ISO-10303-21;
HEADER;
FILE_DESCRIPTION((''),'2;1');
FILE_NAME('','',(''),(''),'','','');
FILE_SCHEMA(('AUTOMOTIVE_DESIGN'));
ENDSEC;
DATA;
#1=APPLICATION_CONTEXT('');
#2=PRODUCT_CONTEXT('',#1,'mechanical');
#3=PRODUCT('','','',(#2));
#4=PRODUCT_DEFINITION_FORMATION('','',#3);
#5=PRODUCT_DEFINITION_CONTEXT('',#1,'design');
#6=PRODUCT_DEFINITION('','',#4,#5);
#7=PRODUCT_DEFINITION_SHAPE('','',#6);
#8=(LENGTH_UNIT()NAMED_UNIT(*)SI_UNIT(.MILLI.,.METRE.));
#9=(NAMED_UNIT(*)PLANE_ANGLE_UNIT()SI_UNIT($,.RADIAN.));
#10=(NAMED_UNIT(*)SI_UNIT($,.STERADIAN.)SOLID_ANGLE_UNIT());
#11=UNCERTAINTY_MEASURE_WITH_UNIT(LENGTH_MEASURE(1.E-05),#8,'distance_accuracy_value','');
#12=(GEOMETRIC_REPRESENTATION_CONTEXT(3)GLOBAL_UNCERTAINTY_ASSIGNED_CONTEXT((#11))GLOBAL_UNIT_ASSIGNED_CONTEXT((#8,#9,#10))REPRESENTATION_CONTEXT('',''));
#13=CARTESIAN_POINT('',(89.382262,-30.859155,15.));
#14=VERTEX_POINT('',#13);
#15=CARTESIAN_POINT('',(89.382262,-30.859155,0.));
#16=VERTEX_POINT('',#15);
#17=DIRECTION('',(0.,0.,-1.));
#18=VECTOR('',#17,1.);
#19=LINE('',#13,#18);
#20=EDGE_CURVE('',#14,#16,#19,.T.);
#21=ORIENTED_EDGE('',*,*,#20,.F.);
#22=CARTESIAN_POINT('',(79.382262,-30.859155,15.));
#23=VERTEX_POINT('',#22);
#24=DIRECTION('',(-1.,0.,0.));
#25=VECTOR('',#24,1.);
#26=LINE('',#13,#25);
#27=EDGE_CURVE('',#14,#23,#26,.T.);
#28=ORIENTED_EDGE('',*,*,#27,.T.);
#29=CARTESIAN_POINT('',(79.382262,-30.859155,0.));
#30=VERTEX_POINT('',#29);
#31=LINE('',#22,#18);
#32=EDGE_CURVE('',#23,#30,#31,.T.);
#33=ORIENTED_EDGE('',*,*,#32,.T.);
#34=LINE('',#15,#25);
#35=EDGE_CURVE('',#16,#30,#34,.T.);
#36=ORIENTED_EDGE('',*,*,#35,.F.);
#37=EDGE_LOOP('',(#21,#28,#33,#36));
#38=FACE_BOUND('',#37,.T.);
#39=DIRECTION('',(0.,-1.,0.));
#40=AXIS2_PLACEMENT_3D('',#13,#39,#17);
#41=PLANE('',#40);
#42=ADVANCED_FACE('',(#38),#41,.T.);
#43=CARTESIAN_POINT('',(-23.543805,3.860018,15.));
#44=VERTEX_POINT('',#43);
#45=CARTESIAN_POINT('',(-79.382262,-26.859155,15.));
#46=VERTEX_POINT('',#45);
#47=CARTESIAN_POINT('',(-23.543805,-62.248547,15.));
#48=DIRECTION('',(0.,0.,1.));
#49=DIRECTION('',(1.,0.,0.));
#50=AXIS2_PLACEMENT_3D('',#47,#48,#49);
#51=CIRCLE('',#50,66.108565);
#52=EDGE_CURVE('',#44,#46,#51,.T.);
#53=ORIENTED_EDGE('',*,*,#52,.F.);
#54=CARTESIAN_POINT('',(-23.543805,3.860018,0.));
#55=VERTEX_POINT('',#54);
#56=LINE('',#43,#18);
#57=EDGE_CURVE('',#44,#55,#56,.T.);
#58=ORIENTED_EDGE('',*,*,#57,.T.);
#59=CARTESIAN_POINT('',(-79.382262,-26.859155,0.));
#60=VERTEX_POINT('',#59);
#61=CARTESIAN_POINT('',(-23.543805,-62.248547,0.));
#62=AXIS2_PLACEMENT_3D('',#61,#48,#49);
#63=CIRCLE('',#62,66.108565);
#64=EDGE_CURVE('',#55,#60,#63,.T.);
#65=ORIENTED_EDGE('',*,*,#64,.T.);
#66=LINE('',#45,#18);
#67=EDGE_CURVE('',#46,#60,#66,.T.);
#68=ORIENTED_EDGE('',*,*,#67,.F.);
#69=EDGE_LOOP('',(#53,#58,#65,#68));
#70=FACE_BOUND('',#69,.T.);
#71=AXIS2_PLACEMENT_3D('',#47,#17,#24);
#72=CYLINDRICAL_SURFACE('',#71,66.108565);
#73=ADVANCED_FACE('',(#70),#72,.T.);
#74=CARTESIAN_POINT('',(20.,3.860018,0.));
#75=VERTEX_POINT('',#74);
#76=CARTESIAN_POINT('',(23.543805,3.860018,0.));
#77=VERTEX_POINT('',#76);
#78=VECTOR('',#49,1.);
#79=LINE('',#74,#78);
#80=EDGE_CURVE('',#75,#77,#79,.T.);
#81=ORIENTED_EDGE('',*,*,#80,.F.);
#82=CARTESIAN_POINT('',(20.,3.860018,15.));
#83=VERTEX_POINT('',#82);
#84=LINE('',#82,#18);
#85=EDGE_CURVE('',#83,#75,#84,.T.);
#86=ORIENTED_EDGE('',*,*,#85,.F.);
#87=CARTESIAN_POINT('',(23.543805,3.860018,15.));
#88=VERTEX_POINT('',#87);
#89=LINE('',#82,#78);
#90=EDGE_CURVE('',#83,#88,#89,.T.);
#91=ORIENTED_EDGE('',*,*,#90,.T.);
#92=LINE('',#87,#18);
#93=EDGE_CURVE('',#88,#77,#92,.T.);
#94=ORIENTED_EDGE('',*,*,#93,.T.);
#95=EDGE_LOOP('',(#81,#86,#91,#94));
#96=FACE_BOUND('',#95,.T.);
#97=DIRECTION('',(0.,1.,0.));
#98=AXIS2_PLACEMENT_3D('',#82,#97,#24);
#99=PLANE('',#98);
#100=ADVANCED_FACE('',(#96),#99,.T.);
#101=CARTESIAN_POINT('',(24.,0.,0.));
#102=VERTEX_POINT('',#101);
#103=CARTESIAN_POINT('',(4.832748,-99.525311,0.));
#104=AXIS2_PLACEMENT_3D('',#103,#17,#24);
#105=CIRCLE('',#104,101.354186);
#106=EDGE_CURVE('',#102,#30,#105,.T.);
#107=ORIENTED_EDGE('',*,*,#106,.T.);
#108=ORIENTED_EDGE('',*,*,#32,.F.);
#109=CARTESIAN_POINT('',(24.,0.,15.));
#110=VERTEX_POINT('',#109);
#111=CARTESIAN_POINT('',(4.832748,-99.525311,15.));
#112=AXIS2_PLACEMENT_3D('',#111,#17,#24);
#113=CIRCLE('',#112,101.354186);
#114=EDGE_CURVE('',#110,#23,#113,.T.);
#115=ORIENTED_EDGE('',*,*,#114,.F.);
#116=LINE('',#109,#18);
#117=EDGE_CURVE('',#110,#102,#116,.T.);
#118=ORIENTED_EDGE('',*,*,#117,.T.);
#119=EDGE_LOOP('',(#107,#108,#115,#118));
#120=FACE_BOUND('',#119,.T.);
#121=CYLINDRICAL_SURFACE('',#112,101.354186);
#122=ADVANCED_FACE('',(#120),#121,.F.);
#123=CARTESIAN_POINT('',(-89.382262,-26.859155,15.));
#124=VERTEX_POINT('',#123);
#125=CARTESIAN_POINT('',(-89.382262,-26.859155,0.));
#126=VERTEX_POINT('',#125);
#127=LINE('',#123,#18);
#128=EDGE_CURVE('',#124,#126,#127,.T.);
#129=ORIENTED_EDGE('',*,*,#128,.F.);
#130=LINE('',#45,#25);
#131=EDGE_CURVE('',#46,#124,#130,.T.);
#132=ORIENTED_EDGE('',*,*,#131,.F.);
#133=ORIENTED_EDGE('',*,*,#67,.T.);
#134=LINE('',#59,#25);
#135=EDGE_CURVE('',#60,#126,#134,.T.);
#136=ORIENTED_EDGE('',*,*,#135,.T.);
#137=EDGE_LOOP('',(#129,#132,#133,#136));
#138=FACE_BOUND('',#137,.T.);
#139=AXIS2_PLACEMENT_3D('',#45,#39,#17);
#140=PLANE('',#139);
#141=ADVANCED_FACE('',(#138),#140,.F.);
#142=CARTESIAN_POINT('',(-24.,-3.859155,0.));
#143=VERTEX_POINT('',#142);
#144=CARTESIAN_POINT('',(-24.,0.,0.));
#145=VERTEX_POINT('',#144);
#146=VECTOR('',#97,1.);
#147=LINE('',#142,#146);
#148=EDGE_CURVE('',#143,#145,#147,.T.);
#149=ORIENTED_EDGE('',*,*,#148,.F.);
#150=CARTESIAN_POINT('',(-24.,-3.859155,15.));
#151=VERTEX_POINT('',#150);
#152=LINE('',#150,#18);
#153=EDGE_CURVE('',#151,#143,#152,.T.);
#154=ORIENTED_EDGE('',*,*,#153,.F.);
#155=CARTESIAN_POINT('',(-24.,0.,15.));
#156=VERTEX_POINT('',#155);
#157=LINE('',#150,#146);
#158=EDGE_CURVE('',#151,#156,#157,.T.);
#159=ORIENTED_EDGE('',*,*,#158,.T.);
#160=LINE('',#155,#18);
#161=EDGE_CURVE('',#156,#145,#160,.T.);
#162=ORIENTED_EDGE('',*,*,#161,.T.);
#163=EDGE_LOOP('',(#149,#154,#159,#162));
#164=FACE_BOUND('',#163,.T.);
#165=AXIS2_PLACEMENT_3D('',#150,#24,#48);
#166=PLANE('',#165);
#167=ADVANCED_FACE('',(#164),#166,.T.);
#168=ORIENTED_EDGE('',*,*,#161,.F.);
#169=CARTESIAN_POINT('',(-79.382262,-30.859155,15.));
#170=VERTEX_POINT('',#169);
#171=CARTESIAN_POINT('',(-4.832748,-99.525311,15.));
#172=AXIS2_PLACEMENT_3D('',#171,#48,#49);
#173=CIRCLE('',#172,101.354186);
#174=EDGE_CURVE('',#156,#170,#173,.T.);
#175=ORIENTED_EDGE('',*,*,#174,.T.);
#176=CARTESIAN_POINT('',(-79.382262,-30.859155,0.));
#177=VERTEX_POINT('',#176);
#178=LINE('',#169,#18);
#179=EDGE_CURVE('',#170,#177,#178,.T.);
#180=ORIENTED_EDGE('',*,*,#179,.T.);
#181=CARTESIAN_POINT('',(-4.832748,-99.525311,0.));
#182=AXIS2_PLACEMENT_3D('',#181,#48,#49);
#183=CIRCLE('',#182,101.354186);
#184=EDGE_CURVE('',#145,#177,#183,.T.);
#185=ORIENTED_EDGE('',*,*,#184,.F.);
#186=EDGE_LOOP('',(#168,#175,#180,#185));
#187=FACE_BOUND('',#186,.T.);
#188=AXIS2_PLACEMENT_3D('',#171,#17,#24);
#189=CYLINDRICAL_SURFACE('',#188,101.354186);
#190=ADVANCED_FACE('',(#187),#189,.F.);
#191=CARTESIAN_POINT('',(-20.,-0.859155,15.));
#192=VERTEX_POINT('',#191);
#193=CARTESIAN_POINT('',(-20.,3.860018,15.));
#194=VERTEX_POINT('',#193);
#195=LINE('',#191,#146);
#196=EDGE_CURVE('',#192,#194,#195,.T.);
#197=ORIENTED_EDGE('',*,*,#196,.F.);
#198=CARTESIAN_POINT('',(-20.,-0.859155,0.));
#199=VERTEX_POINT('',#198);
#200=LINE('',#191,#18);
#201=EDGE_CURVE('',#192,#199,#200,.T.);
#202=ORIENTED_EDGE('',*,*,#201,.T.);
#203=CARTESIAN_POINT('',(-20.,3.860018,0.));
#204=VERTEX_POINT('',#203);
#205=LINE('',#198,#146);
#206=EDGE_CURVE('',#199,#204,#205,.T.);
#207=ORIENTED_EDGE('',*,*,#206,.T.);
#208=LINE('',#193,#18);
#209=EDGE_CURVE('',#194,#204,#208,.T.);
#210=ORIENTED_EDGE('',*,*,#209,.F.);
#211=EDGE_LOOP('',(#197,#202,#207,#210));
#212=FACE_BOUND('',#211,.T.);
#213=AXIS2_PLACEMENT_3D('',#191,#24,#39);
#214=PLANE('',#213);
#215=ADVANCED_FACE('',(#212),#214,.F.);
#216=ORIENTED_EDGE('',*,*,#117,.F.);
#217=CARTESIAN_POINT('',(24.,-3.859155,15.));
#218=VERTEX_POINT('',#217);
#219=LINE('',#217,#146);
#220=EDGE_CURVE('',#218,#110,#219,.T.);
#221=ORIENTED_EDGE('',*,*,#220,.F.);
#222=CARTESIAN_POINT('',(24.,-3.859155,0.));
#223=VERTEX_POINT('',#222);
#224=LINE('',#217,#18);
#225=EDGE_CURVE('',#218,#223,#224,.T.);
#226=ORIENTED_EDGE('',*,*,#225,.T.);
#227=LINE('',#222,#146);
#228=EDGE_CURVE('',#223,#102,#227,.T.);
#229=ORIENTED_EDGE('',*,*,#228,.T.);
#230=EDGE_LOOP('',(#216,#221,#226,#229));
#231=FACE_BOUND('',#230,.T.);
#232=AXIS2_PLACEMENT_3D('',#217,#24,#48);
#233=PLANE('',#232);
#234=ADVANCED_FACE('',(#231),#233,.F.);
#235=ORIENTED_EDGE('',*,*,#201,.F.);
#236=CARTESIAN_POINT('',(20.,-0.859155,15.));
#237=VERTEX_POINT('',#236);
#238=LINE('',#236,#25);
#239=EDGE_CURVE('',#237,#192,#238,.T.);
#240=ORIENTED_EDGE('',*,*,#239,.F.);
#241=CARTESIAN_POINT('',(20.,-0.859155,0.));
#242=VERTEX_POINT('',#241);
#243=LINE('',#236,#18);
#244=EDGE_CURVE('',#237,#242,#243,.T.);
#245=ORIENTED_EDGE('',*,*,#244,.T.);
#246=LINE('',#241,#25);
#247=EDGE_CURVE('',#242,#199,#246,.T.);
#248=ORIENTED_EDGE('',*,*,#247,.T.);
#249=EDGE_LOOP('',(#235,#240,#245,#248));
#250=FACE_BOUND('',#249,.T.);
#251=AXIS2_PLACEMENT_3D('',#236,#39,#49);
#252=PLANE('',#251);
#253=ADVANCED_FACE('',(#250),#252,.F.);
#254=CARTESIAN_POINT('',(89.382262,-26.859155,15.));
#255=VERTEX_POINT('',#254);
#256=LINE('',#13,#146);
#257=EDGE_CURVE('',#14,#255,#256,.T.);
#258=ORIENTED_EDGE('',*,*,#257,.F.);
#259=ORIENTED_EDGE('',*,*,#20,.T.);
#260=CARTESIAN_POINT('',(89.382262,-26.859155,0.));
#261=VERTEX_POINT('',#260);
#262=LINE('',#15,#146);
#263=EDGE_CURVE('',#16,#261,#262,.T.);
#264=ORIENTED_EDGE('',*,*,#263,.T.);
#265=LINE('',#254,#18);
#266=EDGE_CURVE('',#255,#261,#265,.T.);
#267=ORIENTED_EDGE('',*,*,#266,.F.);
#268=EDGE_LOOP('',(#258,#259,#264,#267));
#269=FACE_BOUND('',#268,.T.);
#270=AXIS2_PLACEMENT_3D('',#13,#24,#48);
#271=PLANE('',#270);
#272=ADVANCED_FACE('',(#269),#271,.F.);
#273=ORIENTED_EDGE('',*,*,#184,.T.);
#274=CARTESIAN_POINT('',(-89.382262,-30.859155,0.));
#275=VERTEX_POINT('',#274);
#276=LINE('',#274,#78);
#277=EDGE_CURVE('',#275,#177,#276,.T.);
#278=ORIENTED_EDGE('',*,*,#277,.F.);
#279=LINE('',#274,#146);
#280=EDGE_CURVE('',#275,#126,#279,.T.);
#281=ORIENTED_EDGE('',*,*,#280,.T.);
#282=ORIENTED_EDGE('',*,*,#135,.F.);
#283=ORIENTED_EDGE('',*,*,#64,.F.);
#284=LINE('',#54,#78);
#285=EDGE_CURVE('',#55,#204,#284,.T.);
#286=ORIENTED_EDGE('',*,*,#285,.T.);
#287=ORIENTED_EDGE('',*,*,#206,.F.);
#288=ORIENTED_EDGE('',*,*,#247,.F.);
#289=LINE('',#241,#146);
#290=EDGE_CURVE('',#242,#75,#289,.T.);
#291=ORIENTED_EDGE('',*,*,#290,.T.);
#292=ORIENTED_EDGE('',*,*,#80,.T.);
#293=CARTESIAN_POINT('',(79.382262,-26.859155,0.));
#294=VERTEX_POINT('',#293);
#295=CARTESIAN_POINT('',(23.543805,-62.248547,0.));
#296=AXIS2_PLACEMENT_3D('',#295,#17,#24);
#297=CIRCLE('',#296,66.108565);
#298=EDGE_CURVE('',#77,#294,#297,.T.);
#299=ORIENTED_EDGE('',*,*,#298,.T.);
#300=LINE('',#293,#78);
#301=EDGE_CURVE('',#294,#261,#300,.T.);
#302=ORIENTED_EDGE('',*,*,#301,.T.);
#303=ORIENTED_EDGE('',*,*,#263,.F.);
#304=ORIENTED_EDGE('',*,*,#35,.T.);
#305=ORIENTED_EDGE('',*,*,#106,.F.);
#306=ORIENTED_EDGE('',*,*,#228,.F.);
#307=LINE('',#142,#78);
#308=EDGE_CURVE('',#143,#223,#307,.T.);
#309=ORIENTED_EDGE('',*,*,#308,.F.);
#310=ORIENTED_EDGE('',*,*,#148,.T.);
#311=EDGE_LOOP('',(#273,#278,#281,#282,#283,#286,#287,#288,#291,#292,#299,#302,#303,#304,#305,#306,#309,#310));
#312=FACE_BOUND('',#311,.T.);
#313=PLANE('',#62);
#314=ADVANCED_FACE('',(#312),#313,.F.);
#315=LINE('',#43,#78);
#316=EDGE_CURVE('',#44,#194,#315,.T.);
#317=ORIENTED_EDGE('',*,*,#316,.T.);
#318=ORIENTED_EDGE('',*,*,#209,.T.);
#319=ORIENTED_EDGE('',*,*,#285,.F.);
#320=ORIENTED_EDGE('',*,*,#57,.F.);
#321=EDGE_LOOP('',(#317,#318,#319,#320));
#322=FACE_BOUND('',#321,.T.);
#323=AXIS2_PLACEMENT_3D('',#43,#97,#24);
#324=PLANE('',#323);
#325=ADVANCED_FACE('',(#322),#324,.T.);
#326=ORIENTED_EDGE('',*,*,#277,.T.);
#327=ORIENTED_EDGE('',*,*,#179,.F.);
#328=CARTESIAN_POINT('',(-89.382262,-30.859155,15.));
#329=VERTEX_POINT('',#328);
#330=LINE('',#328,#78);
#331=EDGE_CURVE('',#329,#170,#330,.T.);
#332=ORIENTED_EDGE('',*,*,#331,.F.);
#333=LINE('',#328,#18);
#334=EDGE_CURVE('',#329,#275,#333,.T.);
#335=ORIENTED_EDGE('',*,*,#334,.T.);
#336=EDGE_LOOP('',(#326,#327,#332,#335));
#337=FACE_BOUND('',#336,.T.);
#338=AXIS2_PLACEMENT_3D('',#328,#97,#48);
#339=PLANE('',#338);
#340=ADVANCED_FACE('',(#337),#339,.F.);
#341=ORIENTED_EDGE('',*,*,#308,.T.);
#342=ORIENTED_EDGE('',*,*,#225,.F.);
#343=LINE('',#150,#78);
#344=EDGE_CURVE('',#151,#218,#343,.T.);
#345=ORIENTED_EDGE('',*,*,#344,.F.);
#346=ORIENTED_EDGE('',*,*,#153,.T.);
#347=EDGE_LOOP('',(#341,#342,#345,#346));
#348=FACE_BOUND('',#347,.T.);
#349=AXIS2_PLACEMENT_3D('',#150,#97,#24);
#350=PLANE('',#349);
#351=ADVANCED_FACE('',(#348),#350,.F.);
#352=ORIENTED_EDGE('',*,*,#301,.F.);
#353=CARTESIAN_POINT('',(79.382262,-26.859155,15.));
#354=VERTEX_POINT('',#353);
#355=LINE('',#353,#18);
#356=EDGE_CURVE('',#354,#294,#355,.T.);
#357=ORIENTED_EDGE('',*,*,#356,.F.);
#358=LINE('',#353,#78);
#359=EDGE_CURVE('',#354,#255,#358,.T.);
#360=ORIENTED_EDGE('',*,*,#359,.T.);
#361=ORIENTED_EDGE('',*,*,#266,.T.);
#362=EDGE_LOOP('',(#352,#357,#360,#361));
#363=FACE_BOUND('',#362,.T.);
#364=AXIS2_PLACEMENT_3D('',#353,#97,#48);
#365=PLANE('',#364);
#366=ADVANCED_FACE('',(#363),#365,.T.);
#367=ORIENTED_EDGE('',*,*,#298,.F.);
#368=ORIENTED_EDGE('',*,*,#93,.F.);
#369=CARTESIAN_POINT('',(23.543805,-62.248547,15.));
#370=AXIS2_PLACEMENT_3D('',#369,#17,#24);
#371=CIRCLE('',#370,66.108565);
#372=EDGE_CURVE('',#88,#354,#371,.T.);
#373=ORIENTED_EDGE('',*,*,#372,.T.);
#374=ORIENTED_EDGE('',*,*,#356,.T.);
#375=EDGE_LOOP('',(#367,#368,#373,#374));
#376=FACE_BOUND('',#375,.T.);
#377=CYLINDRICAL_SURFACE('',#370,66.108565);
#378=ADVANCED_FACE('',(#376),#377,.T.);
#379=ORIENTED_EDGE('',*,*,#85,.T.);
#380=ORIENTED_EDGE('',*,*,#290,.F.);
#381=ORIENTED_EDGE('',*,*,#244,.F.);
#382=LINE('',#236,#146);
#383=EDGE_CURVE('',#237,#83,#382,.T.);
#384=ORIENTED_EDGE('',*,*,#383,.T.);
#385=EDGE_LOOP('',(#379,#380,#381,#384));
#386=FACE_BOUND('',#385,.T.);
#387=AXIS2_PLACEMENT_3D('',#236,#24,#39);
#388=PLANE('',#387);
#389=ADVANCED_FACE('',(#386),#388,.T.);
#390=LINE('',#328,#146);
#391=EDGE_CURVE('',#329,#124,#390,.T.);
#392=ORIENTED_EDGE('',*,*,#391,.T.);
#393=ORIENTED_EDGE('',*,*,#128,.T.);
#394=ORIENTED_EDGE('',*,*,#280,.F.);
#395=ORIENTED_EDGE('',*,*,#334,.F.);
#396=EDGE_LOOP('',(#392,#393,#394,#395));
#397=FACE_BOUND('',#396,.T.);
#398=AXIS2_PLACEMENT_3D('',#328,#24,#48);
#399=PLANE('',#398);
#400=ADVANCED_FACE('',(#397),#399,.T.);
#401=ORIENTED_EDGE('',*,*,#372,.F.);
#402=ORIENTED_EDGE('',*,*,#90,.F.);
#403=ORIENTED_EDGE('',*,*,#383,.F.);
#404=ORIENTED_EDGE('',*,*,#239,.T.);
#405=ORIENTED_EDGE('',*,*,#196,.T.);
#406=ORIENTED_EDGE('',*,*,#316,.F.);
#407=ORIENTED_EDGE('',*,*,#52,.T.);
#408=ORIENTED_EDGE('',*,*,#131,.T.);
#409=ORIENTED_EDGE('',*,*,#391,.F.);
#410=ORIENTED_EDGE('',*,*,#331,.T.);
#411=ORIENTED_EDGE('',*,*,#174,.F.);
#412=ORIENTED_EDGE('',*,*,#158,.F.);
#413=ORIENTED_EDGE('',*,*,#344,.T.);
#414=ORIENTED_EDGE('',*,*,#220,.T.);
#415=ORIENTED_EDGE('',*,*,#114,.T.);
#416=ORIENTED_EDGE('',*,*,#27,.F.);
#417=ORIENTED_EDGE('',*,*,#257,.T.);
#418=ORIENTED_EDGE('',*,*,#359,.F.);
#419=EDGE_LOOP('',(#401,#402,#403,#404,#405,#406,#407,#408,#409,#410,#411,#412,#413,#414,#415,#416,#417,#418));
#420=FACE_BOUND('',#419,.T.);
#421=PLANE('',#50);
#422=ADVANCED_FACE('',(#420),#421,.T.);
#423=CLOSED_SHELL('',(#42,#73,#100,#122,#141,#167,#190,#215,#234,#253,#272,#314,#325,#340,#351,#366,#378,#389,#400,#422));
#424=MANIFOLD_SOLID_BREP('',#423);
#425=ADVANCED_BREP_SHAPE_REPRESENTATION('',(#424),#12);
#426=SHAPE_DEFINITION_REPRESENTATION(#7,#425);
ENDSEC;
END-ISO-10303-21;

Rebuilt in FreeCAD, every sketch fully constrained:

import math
import FreeCAD as App
import Part
import Sketcher

V = App.Vector

doc = App.newDocument("Part")
params = doc.addObject("Spreadsheet::Sheet", "Params")
for row, (alias, value) in enumerate([
    ("sketch1_width", "40 mm"),
    ("sketch1_width2", "10 mm"),
    ("sketch1_width3", "48 mm"),
    ("sketch1_height", "4 mm"),
    ("pad1_length", "15 mm"),
], start=1):
    params.set(f"A{row}", alias)
    params.set(f"B{row}", "=" + value)
    params.setAlias(f"B{row}", alias)

body = doc.addObject("PartDesign::Body", "Body")

# Sketch on XY plane
sketch1 = body.newObject("Sketcher::SketchObject", "Sketch")
sketch1.AttachmentSupport = (doc.getObject("XY_Plane"), [""])
sketch1.MapMode = "FlatFace"
sketch1.addGeometry([
    Part.LineSegment(V(20, 3.860018, 0), V(20, -0.859155, 0)),  # 0
    Part.LineSegment(V(20, -0.859155, 0), V(-20, -0.859155, 0)),  # 1
    Part.LineSegment(V(-20, -0.859155, 0), V(-20, 3.860018, 0)),  # 2
    Part.LineSegment(V(-20, 3.860018, 0), V(-23.543805, 3.860018, 0)),  # 3
    Part.ArcOfCircle(Part.Circle(V(-23.543805, -62.248547, 0), V(0, 0, 1), 66.108565), math.radians(90), math.radians(147.634225)),  # 4
    Part.LineSegment(V(-79.382262, -26.859155, 0), V(-89.382262, -26.859155, 0)),  # 5
    Part.LineSegment(V(-89.382262, -26.859155, 0), V(-89.382262, -30.859155, 0)),  # 6
    Part.LineSegment(V(-89.382262, -30.859155, 0), V(-79.382262, -30.859155, 0)),  # 7
    Part.ArcOfCircle(Part.Circle(V(-4.832748, -99.525311, 0), V(0, 0, 1), 101.354186), math.radians(100.900943), math.radians(137.352411)),  # 8
    Part.LineSegment(V(-24, 0, 0), V(-24, -3.859155, 0)),  # 9
    Part.LineSegment(V(-24, -3.859155, 0), V(24, -3.859155, 0)),  # 10
    Part.LineSegment(V(24, -3.859155, 0), V(24, 0, 0)),  # 11
    Part.ArcOfCircle(Part.Circle(V(4.832748, -99.525311, 0), V(0, 0, 1), 101.354186), math.radians(42.647589), math.radians(79.099057)),  # 12
    Part.LineSegment(V(79.382262, -30.859155, 0), V(89.382262, -30.859155, 0)),  # 13
    Part.LineSegment(V(89.382262, -30.859155, 0), V(89.382262, -26.859155, 0)),  # 14
    Part.LineSegment(V(89.382262, -26.859155, 0), V(79.382262, -26.859155, 0)),  # 15
    Part.ArcOfCircle(Part.Circle(V(23.543805, -62.248547, 0), V(0, 0, 1), 66.108565), math.radians(32.365775), math.radians(90)),  # 16
    Part.LineSegment(V(23.543805, 3.860018, 0), V(20, 3.860018, 0)),  # 17
], False)
sketch1.addConstraint([
    Sketcher.Constraint("Coincident", 0, 2, 1, 1),
    Sketcher.Constraint("Coincident", 1, 2, 2, 1),
    Sketcher.Constraint("Coincident", 2, 2, 3, 1),
    Sketcher.Constraint("Tangent", 3, 2, 4, 1),
    Sketcher.Constraint("Coincident", 4, 2, 5, 1),
    Sketcher.Constraint("Coincident", 5, 2, 6, 1),
    Sketcher.Constraint("Coincident", 6, 2, 7, 1),
    Sketcher.Constraint("Coincident", 7, 2, 8, 2),
    Sketcher.Constraint("Coincident", 8, 1, 9, 1),
    Sketcher.Constraint("Coincident", 9, 2, 10, 1),
    Sketcher.Constraint("Coincident", 10, 2, 11, 1),
    Sketcher.Constraint("Coincident", 11, 2, 12, 2),
    Sketcher.Constraint("Coincident", 12, 1, 13, 1),
    Sketcher.Constraint("Coincident", 13, 2, 14, 1),
    Sketcher.Constraint("Coincident", 14, 2, 15, 1),
    Sketcher.Constraint("Coincident", 15, 2, 16, 1),
    Sketcher.Constraint("Tangent", 16, 2, 17, 1),
    Sketcher.Constraint("Coincident", 17, 2, 0, 1),
    Sketcher.Constraint("Vertical", 0),
    Sketcher.Constraint("Horizontal", 1),
    Sketcher.Constraint("Vertical", 2),
    Sketcher.Constraint("Horizontal", 3),
    Sketcher.Constraint("Horizontal", 5),
    Sketcher.Constraint("Vertical", 6),
    Sketcher.Constraint("Horizontal", 7),
    Sketcher.Constraint("Vertical", 9),
    Sketcher.Constraint("Horizontal", 10),
    Sketcher.Constraint("Vertical", 11),
    Sketcher.Constraint("Horizontal", 13),
    Sketcher.Constraint("Vertical", 14),
    Sketcher.Constraint("Horizontal", 15),
    Sketcher.Constraint("Horizontal", 17),
    Sketcher.Constraint("Equal", 8, 12),
    Sketcher.Constraint("Equal", 4, 16),
    Sketcher.Constraint("Symmetric", 8, 1, 11, 2, -1, 1),
    Sketcher.Constraint("Symmetric", 8, 3, 12, 3, -2),
    Sketcher.Constraint("Symmetric", 4, 3, 16, 3, -2),
    Sketcher.Constraint("Symmetric", 6, 2, 13, 2, -2),
    Sketcher.Constraint("Horizontal", 5, 2, 14, 2),
    Sketcher.Constraint("Vertical", 4, 2, 7, 2),
    Sketcher.Constraint("Equal", 3, 17),
    Sketcher.Constraint("DistanceX", 1, 2, 1, 1, 40.0),
    Sketcher.Constraint("DistanceX", 5, 2, 5, 1, 10.0),
    Sketcher.Constraint("DistanceX", 10, 1, 10, 2, 48.0),
    Sketcher.Constraint("DistanceY", 6, 2, 6, 1, 4.0),
    Sketcher.Constraint("DistanceY", 4, 2, 1, 2, 26.0),
    Sketcher.Constraint("DistanceY", 9, 2, 1, 2, 3.0),
    Sketcher.Constraint("Radius", 4, 66.108565),
    Sketcher.Constraint("Radius", 8, 101.354186),
    Sketcher.Constraint("DistanceX", 3, 2, 3, 1, 3.543805),
    Sketcher.Constraint("DistanceY", 0, 2, 0, 1, 4.719173),
    Sketcher.Constraint("DistanceY", 9, 2, 9, 1, 3.859155),
])
sketch1.setExpression("Constraints[41]", "Params.sketch1_width")
sketch1.setExpression("Constraints[42]", "Params.sketch1_width2")
sketch1.setExpression("Constraints[43]", "Params.sketch1_width3")
sketch1.setExpression("Constraints[44]", "Params.sketch1_height")
pad1 = body.newObject("PartDesign::Pad", "Pad")
pad1.Profile = sketch1
pad1.setExpression("Length", "Params.pad1_length")

doc.recompute()
